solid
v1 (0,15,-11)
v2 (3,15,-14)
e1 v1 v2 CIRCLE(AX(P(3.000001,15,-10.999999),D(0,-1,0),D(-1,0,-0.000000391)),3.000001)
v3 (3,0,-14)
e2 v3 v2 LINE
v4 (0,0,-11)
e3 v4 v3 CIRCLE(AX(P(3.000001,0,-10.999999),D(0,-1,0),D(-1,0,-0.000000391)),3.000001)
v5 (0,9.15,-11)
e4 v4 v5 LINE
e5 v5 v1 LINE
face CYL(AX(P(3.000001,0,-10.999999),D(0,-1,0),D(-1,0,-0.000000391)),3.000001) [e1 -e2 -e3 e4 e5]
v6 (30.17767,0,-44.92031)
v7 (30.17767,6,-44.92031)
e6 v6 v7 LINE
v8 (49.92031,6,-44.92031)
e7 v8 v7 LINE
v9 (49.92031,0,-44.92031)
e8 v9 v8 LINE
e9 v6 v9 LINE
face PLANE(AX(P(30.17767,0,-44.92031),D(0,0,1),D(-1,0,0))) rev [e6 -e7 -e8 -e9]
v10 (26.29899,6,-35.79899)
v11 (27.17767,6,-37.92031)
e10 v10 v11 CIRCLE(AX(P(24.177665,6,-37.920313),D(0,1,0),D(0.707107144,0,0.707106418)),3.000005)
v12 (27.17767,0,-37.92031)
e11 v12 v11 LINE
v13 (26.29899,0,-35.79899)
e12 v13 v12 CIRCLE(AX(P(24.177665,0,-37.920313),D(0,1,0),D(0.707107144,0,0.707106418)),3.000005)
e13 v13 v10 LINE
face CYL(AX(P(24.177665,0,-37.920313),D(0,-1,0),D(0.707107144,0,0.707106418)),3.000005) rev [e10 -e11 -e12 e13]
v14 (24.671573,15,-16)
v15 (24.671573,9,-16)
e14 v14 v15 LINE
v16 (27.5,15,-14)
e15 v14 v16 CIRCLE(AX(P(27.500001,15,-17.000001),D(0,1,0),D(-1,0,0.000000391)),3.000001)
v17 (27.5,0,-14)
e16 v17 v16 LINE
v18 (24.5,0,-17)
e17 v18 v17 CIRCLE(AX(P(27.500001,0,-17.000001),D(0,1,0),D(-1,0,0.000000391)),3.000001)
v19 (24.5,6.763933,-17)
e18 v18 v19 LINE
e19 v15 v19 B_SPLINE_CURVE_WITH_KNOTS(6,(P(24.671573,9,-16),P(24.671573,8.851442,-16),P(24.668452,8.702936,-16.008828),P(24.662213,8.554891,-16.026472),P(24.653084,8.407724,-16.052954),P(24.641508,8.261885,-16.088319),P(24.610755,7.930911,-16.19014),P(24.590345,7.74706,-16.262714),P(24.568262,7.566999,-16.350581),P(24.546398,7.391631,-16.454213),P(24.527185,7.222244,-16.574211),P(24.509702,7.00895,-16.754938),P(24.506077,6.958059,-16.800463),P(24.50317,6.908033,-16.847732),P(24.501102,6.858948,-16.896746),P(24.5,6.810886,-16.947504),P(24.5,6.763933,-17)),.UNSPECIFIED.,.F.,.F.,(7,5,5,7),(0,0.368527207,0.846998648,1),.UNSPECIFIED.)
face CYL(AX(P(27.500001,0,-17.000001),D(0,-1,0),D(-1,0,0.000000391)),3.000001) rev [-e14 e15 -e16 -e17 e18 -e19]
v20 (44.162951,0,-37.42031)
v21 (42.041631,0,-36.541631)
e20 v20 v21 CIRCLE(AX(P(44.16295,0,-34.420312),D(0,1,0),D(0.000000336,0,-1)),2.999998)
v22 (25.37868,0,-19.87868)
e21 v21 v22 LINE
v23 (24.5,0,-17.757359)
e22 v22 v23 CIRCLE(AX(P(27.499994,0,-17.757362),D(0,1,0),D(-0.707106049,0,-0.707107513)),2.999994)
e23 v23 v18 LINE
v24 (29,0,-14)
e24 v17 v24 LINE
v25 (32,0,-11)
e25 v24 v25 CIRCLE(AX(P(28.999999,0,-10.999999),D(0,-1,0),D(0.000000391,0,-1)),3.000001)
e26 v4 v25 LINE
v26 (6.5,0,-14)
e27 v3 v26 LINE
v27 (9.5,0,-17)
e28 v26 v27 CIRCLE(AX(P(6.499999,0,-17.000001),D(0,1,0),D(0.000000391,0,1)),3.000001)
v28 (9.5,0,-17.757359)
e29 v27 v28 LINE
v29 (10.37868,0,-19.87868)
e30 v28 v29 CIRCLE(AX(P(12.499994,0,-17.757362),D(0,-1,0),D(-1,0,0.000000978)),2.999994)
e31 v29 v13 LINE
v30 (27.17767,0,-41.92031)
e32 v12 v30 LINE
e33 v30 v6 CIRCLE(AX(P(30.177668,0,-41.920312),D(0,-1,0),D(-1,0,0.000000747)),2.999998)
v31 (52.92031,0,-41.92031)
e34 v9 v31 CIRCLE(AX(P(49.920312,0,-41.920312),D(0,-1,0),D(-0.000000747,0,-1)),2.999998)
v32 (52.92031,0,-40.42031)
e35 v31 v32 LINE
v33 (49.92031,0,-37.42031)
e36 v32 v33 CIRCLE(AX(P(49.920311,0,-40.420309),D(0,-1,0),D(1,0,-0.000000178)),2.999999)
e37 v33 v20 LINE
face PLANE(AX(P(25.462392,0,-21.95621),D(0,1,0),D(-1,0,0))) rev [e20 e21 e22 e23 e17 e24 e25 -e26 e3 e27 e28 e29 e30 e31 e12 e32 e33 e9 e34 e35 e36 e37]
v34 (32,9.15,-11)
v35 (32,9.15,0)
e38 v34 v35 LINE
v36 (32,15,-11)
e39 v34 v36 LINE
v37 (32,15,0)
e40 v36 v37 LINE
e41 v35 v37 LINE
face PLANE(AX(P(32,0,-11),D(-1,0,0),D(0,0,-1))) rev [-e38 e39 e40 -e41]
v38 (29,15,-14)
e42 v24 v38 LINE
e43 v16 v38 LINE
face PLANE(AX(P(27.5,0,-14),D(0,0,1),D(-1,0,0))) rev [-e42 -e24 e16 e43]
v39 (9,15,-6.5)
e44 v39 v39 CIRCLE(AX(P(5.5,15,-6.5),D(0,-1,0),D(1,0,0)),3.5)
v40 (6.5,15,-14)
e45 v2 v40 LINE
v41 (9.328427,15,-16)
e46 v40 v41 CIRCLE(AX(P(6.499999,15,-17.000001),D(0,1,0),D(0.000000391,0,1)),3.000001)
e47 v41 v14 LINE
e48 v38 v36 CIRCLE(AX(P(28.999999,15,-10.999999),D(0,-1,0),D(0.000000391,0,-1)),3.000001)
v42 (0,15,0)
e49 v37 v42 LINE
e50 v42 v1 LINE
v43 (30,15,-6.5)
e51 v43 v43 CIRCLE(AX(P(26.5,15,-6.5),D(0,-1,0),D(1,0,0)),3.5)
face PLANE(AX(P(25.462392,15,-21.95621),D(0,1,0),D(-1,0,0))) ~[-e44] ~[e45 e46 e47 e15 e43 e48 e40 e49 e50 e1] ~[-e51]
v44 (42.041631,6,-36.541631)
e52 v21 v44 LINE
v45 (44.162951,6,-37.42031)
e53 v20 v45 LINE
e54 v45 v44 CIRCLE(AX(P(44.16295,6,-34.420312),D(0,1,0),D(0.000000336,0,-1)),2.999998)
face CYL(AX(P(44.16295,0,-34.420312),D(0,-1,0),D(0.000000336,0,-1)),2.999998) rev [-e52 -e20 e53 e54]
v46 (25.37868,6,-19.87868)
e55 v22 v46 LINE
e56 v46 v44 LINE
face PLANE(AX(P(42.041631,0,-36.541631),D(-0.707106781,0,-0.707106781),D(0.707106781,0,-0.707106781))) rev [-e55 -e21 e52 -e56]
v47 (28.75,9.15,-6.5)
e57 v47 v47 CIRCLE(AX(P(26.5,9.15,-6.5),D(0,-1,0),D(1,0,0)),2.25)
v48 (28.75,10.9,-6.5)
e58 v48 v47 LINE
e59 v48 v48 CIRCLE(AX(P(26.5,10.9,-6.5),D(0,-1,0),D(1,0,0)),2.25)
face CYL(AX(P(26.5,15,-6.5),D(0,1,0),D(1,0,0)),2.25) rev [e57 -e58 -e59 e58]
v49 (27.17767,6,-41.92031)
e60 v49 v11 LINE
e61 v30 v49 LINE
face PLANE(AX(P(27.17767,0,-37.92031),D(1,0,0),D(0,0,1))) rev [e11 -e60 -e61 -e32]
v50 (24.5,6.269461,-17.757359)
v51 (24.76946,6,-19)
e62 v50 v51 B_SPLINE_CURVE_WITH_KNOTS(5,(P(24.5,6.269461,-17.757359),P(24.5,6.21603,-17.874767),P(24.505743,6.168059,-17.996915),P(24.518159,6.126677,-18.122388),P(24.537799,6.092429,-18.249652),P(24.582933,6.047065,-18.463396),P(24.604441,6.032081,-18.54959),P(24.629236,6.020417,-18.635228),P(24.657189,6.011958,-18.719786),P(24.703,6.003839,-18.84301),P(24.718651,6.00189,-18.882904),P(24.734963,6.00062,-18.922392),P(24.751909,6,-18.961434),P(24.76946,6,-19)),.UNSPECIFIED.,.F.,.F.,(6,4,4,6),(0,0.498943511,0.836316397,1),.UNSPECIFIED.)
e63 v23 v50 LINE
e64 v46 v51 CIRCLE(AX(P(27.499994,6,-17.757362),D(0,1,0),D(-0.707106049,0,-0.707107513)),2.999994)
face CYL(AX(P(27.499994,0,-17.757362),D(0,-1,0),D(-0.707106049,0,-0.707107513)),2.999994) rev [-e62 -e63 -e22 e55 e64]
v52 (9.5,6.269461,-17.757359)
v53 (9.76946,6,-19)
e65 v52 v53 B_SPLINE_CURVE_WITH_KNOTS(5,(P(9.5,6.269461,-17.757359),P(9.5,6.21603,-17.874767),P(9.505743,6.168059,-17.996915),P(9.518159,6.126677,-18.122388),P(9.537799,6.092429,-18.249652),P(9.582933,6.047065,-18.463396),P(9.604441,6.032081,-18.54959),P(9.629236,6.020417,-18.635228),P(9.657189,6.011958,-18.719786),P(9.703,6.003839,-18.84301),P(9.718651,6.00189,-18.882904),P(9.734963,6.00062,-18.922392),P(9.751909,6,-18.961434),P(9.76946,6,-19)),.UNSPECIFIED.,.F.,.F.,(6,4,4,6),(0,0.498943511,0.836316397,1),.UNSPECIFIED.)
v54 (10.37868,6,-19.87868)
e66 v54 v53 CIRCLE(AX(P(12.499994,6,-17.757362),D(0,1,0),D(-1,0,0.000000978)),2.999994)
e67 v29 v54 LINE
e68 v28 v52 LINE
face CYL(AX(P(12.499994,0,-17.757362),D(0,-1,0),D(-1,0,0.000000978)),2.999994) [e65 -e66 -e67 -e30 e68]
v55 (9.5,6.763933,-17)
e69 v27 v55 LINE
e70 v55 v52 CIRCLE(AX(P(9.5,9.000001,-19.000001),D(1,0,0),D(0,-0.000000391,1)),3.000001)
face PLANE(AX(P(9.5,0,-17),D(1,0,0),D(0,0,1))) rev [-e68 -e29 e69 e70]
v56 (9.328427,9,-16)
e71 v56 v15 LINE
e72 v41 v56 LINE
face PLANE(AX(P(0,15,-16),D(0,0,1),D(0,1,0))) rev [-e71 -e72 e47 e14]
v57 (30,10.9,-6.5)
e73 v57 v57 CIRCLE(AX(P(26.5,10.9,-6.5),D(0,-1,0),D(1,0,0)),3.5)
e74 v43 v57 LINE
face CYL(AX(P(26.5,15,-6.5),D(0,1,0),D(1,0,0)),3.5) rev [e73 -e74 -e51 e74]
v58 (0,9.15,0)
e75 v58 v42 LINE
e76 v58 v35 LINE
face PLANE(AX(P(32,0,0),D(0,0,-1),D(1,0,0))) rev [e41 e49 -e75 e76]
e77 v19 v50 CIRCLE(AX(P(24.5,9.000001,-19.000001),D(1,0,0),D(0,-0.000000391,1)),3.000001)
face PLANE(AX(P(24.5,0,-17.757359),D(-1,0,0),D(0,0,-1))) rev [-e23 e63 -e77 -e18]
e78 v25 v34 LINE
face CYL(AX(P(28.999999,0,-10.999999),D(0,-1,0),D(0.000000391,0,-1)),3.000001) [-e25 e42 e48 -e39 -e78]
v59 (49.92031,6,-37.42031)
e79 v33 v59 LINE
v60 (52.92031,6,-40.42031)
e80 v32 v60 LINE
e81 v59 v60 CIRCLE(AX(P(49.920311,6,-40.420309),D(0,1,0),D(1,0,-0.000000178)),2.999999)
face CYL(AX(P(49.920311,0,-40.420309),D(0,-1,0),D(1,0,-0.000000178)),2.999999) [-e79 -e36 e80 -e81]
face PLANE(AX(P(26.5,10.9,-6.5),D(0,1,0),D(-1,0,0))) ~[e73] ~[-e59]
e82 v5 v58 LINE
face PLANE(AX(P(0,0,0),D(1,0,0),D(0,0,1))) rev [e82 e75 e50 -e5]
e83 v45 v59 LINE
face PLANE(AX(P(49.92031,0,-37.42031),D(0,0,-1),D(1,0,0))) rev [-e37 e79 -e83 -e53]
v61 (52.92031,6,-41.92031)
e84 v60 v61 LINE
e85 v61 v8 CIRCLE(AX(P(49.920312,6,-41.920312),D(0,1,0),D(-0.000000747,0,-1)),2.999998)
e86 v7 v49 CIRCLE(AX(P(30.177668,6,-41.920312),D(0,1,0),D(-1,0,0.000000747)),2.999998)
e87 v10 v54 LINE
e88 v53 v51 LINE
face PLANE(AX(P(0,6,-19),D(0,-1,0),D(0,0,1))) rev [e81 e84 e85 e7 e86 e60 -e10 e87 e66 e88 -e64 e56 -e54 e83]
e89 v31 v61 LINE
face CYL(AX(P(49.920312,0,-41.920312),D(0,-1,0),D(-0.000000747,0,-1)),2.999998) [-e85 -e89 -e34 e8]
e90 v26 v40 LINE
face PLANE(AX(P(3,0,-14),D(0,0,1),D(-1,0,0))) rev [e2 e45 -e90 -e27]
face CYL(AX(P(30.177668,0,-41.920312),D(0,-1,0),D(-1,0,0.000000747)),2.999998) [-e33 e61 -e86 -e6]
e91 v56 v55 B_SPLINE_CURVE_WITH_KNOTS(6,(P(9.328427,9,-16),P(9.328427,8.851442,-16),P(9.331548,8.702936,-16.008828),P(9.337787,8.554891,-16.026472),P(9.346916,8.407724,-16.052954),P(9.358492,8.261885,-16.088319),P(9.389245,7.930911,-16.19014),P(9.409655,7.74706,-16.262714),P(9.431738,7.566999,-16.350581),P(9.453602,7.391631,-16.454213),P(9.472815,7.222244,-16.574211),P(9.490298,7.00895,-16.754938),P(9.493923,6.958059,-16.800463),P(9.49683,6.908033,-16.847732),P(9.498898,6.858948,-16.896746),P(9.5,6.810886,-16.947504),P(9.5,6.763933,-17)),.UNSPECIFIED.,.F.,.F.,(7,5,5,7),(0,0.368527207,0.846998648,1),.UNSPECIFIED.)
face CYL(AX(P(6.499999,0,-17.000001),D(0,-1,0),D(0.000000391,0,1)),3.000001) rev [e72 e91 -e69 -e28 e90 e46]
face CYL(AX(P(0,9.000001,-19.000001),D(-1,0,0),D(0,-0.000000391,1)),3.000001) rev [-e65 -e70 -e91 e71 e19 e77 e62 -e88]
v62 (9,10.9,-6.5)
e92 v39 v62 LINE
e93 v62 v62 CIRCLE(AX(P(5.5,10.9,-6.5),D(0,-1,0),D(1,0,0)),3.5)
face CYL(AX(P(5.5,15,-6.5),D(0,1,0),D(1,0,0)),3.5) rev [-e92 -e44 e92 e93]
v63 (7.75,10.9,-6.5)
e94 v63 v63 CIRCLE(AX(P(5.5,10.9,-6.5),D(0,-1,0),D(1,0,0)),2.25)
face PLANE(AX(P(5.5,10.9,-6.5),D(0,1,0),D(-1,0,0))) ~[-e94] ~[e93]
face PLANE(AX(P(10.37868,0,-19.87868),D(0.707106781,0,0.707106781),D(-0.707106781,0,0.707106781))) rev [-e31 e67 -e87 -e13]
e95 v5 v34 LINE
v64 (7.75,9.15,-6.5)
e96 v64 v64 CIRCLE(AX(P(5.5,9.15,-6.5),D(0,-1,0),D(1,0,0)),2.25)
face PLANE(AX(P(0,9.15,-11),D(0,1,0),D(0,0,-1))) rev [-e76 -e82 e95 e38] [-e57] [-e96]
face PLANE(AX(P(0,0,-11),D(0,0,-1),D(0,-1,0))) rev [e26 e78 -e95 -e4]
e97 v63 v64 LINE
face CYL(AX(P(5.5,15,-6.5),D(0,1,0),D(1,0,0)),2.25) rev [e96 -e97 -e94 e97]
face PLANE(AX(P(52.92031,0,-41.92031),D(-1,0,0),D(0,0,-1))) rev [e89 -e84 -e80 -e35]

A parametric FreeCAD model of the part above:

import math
import FreeCAD as App
import Part
import Sketcher

V = App.Vector
Q = App.Units.Quantity


def add_polygon(sketch, points):
    """Adds a closed chain of lines whose ends are joined by coincident constraints."""
    first, n = sketch.GeometryCount, len(points)
    for a, b in zip(points, points[1:] + points[:1]):
        sketch.addGeometry(Part.LineSegment(App.Vector(*a, 0), App.Vector(*b, 0)), False)
    for i in range(n):
        sketch.addConstraint(Sketcher.Constraint("Coincident", first + i, 2, first + (i + 1) % n, 1))

doc = App.newDocument("Part")
params = doc.addObject("Spreadsheet::Sheet", "Params")
for row, (alias, value) in enumerate([
    ("sketch1_radius", "3.000001 mm"),
    ("sketch1_width", "32 mm"),
    ("sketch1_height", "11 mm"),
    ("sketch1_height2", "4 mm"),
    ("sketch1_width2", "3.5 mm"),
    ("pad1_length", "15 mm"),
    ("sketch2_diameter", "7 mm"),
    ("pocket1_length", "4.1 mm"),
    ("sketch3_diameter", "4.5 mm"),
    ("pocket2_length", "25 mm"),
    ("sketch4_radius", "3.000001 mm"),
    ("sketch4_width", "6 mm"),
    ("sketch4_height", "11 mm"),
    ("sketch4_height2", "32 mm"),
    ("sketch4_width2", "9.15 mm"),
], start=1):
    params.set(f"A{row}", alias)
    params.set(f"B{row}", "=" + value)
    params.setAlias(f"B{row}", alias)

body = doc.addObject("PartDesign::Body", "Body")

# Sketch on XZ plane
sketch1 = body.newObject("Sketcher::SketchObject", "Sketch")
sketch1.AttachmentSupport = (doc.getObject("XZ_Plane"), [""])
sketch1.MapMode = "FlatFace"
sketch1.addGeometry([
    Part.LineSegment(V(32, 0, 0), V(0, 0, 0)),  # 0
    Part.LineSegment(V(0, 0, 0), V(0, -11, 0)),  # 1
    Part.ArcOfCircle(Part.Circle(V(3, -11, 0), V(0, 0, 1), 3), math.radians(-180), math.radians(-90)),  # 2
    Part.LineSegment(V(3, -14, 0), V(6.5, -14, 0)),  # 3
    Part.ArcOfCircle(Part.Circle(V(6.5, -17, 0), V(0, 0, 1), 3), math.radians(0), math.radians(90)),  # 4
    Part.LineSegment(V(9.5, -17, 0), V(9.5, -17.8, 0)),  # 5
    Part.ArcOfCircle(Part.Circle(V(12.5, -17.8, 0), V(0, 0, 1), 3), math.radians(180), math.radians(225)),  # 6
    Part.LineSegment(V(10.4, -19.9, 0), V(26.3, -35.8, 0)),  # 7
    Part.ArcOfCircle(Part.Circle(V(24.2, -37.9, 0), V(0, 0, 1), 3), math.radians(0), math.radians(45)),  # 8
    Part.LineSegment(V(27.2, -37.9, 0), V(27.2, -41.9, 0)),  # 9
    Part.ArcOfCircle(Part.Circle(V(30.2, -41.9, 0), V(0, 0, 1), 3), math.radians(180), math.radians(270)),  # 10
    Part.LineSegment(V(30.2, -44.9, 0), V(49.9, -44.9, 0)),  # 11
    Part.ArcOfCircle(Part.Circle(V(49.9, -41.9, 0), V(0, 0, 1), 3), math.radians(-90), math.radians(0)),  # 12
    Part.LineSegment(V(52.9, -41.9, 0), V(52.9, -40.4, 0)),  # 13
    Part.ArcOfCircle(Part.Circle(V(49.9, -40.4, 0), V(0, 0, 1), 3), math.radians(0), math.radians(90)),  # 14
    Part.LineSegment(V(49.9, -37.4, 0), V(44.2, -37.4, 0)),  # 15
    Part.ArcOfCircle(Part.Circle(V(44.2, -34.4, 0), V(0, 0, 1), 3), math.radians(-135), math.radians(-90)),  # 16
    Part.LineSegment(V(42, -36.5, 0), V(25.4, -19.9, 0)),  # 17
    Part.ArcOfCircle(Part.Circle(V(27.5, -17.8, 0), V(0, 0, 1), 3), math.radians(180), math.radians(225)),  # 18
    Part.LineSegment(V(24.5, -17.8, 0), V(24.5, -17, 0)),  # 19
    Part.ArcOfCircle(Part.Circle(V(27.5, -17, 0), V(0, 0, 1), 3), math.radians(90), math.radians(180)),  # 20
    Part.LineSegment(V(27.5, -14, 0), V(29, -14, 0)),  # 21
    Part.ArcOfCircle(Part.Circle(V(29, -11, 0), V(0, 0, 1), 3), math.radians(-90), math.radians(0)),  # 22
    Part.LineSegment(V(32, -11, 0), V(32, 0, 0)),  # 23
], False)
sketch1.addConstraint([
    Sketcher.Constraint("Coincident", 0, 2, 1, 1),
    Sketcher.Constraint("Tangent", 1, 2, 2, 1),
    Sketcher.Constraint("Tangent", 2, 2, 3, 1),
    Sketcher.Constraint("Tangent", 3, 2, 4, 2),
    Sketcher.Constraint("Tangent", 4, 1, 5, 1),
    Sketcher.Constraint("Tangent", 5, 2, 6, 1),
    Sketcher.Constraint("Tangent", 6, 2, 7, 1),
    Sketcher.Constraint("Tangent", 7, 2, 8, 2),
    Sketcher.Constraint("Tangent", 8, 1, 9, 1),
    Sketcher.Constraint("Tangent", 9, 2, 10, 1),
    Sketcher.Constraint("Tangent", 10, 2, 11, 1),
    Sketcher.Constraint("Tangent", 11, 2, 12, 1),
    Sketcher.Constraint("Tangent", 12, 2, 13, 1),
    Sketcher.Constraint("Tangent", 13, 2, 14, 1),
    Sketcher.Constraint("Tangent", 14, 2, 15, 1),
    Sketcher.Constraint("Tangent", 15, 2, 16, 2),
    Sketcher.Constraint("Tangent", 16, 1, 17, 1),
    Sketcher.Constraint("Tangent", 17, 2, 18, 2),
    Sketcher.Constraint("Tangent", 18, 1, 19, 1),
    Sketcher.Constraint("Tangent", 19, 2, 20, 2),
    Sketcher.Constraint("Tangent", 20, 1, 21, 1),
    Sketcher.Constraint("Tangent", 21, 2, 22, 1),
    Sketcher.Constraint("Tangent", 22, 2, 23, 1),
    Sketcher.Constraint("Coincident", 23, 2, 0, 1),
    Sketcher.Constraint("Horizontal", 0),
    Sketcher.Constraint("Vertical", 1),
    Sketcher.Constraint("Horizontal", 3),
    Sketcher.Constraint("Vertical", 5),
    Sketcher.Constraint("Vertical", 9),
    Sketcher.Constraint("Horizontal", 11),
    Sketcher.Constraint("Vertical", 13),
    Sketcher.Constraint("Horizontal", 15),
    Sketcher.Constraint("Vertical", 19),
    Sketcher.Constraint("Horizontal", 21),
    Sketcher.Constraint("Vertical", 23),
    Sketcher.Constraint("Coincident", 0, 2, -1, 1),
    Sketcher.Constraint("Equal", 2, 4),
    Sketcher.Constraint("Equal", 10, 12),
    Sketcher.Constraint("Equal", 12, 14),
    Sketcher.Constraint("Equal", 14, 16),
    Sketcher.Constraint("Equal", 6, 18),
    Sketcher.Constraint("Equal", 14, 20),
    Sketcher.Constraint("Equal", 20, 22),
    Sketcher.Constraint("Parallel", 7, 17),
    Sketcher.Constraint("Horizontal", 6, 3, 18, 3),
    Sketcher.Constraint("Horizontal", 4, 3, 20, 3),
    Sketcher.Constraint("Horizontal", 2, 3, 22, 3),
    Sketcher.Constraint("Equal", 21, 13),
    Sketcher.Constraint("Radius", 2, 3.000001),
    Sketcher.Constraint("DistanceX", 0, 2, 0, 1, 32.0),
    Sketcher.Constraint("DistanceY", 1, 2, 1, 1, 11.0),
    Sketcher.Constraint("DistanceY", 9, 2, 9, 1, 4.0),
    Sketcher.Constraint("Angle", 7, Q("-45 deg")),
    Sketcher.Constraint("DistanceX", 3, 1, 3, 2, 3.5),
    Sketcher.Constraint("DistanceX", 21, 1, 21, 2, 1.5),
    Sketcher.Constraint("Radius", 6, 2.999994),
    Sketcher.Constraint("Radius", 8, 3.000005),
    Sketcher.Constraint("DistanceX", 11, 1, 11, 2, 19.74264),
    Sketcher.Constraint("DistanceY", 5, 2, 5, 1, 0.757359),
    Sketcher.Constraint("Distance", 7, 22.514718),
])
sketch1.setExpression("Constraints[48]", "Params.sketch1_radius")
sketch1.setExpression("Constraints[49]", "Params.sketch1_width")
sketch1.setExpression("Constraints[50]", "Params.sketch1_height")
sketch1.setExpression("Constraints[51]", "Params.sketch1_height2")
sketch1.setExpression("Constraints[53]", "Params.sketch1_width2")
pad1 = body.newObject("PartDesign::Pad", "Pad")
pad1.Profile = sketch1
pad1.setExpression("Length", "Params.pad1_length")

# Sketch on XZ plane
sketch2 = body.newObject("Sketcher::SketchObject", "Sketch001")
sketch2.AttachmentSupport = (doc.getObject("XZ_Plane"), [""])
sketch2.MapMode = "FlatFace"
sketch2.AttachmentOffset = App.Placement(V(0, 0, 15), App.Rotation())
sketch2.addGeometry([
    Part.Circle(V(26.5, -6.5, 0), V(0, 0, 1), 3.5),
    Part.Circle(V(5.5, -6.5, 0), V(0, 0, 1), 3.5),
], False)
sketch2.addConstraint([
    Sketcher.Constraint("Equal", 0, 1),
    Sketcher.Constraint("Horizontal", 0, 3, 1, 3),
    Sketcher.Constraint("Diameter", 0, 7.0),
    Sketcher.Constraint("DistanceX", 1, 3, 0, 3, 21.0),
    Sketcher.Constraint("DistanceX", -1, 1, 0, 3, 26.5),
    Sketcher.Constraint("DistanceY", 0, 3, -1, 1, 6.5),
])
sketch2.setExpression("Constraints[2]", "Params.sketch2_diameter")
pocket1 = body.newObject("PartDesign::Pocket", "Pocket")
pocket1.Profile = sketch2
pocket1.setExpression("Length", "Params.pocket1_length")

# Sketch on XZ plane
sketch3 = body.newObject("Sketcher::SketchObject", "Sketch002")
sketch3.AttachmentSupport = (doc.getObject("XZ_Plane"), [""])
sketch3.MapMode = "FlatFace"
sketch3.AttachmentOffset = App.Placement(V(0, 0, 15), App.Rotation())
sketch3.addGeometry([
    Part.Circle(V(5.5, -6.5, 0), V(0, 0, 1), 2.2),
    Part.Circle(V(26.5, -6.5, 0), V(0, 0, 1), 2.2),
], False)
sketch3.addConstraint([
    Sketcher.Constraint("Equal", 0, 1),
    Sketcher.Constraint("Horizontal", 0, 3, 1, 3),
    Sketcher.Constraint("Diameter", 0, 4.5),
    Sketcher.Constraint("DistanceX", 0, 3, 1, 3, 21.0),
    Sketcher.Constraint("DistanceX", -1, 1, 0, 3, 5.5),
    Sketcher.Constraint("DistanceY", 0, 3, -1, 1, 6.5),
])
sketch3.setExpression("Constraints[2]", "Params.sketch3_diameter")
pocket2 = body.newObject("PartDesign::Pocket", "Pocket001")
pocket2.Profile = sketch3
pocket2.setExpression("Length", "Params.pocket2_length")

# Sketch on YZ plane
sketch4 = body.newObject("Sketcher::SketchObject", "Sketch003")
sketch4.AttachmentSupport = (doc.getObject("YZ_Plane"), [""])
sketch4.MapMode = "FlatFace"
add_polygon(sketch4, [(0, 0), (0, -11), (-9.2, -11), (-9.2, 0)])  # lines 0-3
sketch4.addGeometry(Part.ArcOfCircle(Part.Circle(V(-9, -45, 0), V(0, 0, 1), 3), math.radians(-90), math.radians(0)), False)  # 4
sketch4.addGeometry(Part.LineSegment(V(-9, -48, 0), V(-15, -48, 0)), False)  # 5
sketch4.addGeometry(Part.LineSegment(V(-15, -48, 0), V(-15, -16, 0)), False)  # 6
sketch4.addGeometry(Part.LineSegment(V(-15, -16, 0), V(-9, -16, 0)), False)  # 7
sketch4.addGeometry(Part.ArcOfCircle(Part.Circle(V(-9, -19, 0), V(0, 0, 1), 3), math.radians(0), math.radians(90)), False)  # 8
sketch4.addGeometry(Part.LineSegment(V(-6, -19, 0), V(-6, -45, 0)), False)  # 9
sketch4.addConstraint([
    Sketcher.Constraint("Tangent", 4, 1, 5, 1),
    Sketcher.Constraint("Coincident", 5, 2, 6, 1),
    Sketcher.Constraint("Coincident", 6, 2, 7, 1),
    Sketcher.Constraint("Tangent", 7, 2, 8, 2),
    Sketcher.Constraint("Tangent", 8, 1, 9, 1),
    Sketcher.Constraint("Tangent", 9, 2, 4, 2),
    Sketcher.Constraint("Vertical", 0),
    Sketcher.Constraint("Horizontal", 1),
    Sketcher.Constraint("Vertical", 2),
    Sketcher.Constraint("Horizontal", 3),
    Sketcher.Constraint("Horizontal", 5),
    Sketcher.Constraint("Vertical", 6),
    Sketcher.Constraint("Horizontal", 7),
    Sketcher.Constraint("Vertical", 9),
    Sketcher.Constraint("Coincident", 3, 2, -1, 1),
    Sketcher.Constraint("Equal", 4, 8),
    Sketcher.Constraint("Radius", 4, 3.000001),
    Sketcher.Constraint("DistanceX", 5, 2, 5, 1, 6.0),
    Sketcher.Constraint("DistanceY", 0, 2, 0, 1, 11.0),
    Sketcher.Constraint("DistanceY", 6, 1, 6, 2, 32.0),
    Sketcher.Constraint("DistanceX", 4, 3, -1, 1, 9.000001),
    Sketcher.Constraint("DistanceY", 4, 3, -1, 1, 44.999999),
    Sketcher.Constraint("DistanceX", 1, 2, 1, 1, 9.15),
])
sketch4.setExpression("Constraints[20]", "Params.sketch4_radius")
sketch4.setExpression("Constraints[21]", "Params.sketch4_width")
sketch4.setExpression("Constraints[22]", "Params.sketch4_height")
sketch4.setExpression("Constraints[23]", "Params.sketch4_height2")
sketch4.setExpression("Constraints[26]", "Params.sketch4_width2")
pocket3 = body.newObject("PartDesign::Pocket", "Pocket002")
pocket3.Profile = sketch4
pocket3.Type = "ThroughAll"
pocket3.Reversed = True
body2 = doc.addObject("PartDesign::Body", "Body001")
doc.recompute()

mirroring = doc.addObject("Part::Mirroring", "Mirroring")
mirroring.Source = body
mirroring.Base = V(0, 0, 0)
mirroring.Normal = V(0, -1, 0)
body2.BaseFeature = mirroring
doc.recompute()
body.Visibility = False
mirroring.Visibility = False

doc.recompute()
